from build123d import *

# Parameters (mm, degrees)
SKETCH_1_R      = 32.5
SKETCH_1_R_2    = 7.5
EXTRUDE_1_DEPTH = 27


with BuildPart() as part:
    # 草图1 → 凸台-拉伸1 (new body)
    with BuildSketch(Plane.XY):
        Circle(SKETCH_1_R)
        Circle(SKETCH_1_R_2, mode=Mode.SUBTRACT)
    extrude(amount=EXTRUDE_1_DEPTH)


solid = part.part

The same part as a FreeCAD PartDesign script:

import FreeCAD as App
import Part
import Sketcher

V = App.Vector

doc = App.newDocument("Part")
params = doc.addObject("Spreadsheet::Sheet", "Params")
for row, (alias, value) in enumerate([
    ("sketch1_diameter", "65 mm"),
    ("sketch1_diameter2", "15 mm"),
    ("pad1_length", "27 mm"),
], start=1):
    params.set(f"A{row}", alias)
    params.set(f"B{row}", "=" + value)
    params.setAlias(f"B{row}", alias)

body = doc.addObject("PartDesign::Body", "Body")

# Sketch on XY plane
sketch1 = body.newObject("Sketcher::SketchObject", "Sketch")
sketch1.AttachmentSupport = (doc.getObject("XY_Plane"), [""])
sketch1.MapMode = "FlatFace"
sketch1.addGeometry([
    Part.Circle(V(0, 0, 0), V(0, 0, 1), 32.5),
    Part.Circle(V(0, 0, 0), V(0, 0, 1), 7.5),
], False)
sketch1.addConstraint([
    Sketcher.Constraint("Coincident", 0, 3, -1, 1),
    Sketcher.Constraint("Coincident", 1, 3, -1, 1),
    Sketcher.Constraint("Diameter", 0, 65.0),
    Sketcher.Constraint("Diameter", 1, 15.0),
])
sketch1.setExpression("Constraints[2]", "Params.sketch1_diameter")
sketch1.setExpression("Constraints[3]", "Params.sketch1_diameter2")
pad1 = body.newObject("PartDesign::Pad", "Pad")
pad1.Profile = sketch1
pad1.setExpression("Length", "Params.pad1_length")

doc.recompute()
